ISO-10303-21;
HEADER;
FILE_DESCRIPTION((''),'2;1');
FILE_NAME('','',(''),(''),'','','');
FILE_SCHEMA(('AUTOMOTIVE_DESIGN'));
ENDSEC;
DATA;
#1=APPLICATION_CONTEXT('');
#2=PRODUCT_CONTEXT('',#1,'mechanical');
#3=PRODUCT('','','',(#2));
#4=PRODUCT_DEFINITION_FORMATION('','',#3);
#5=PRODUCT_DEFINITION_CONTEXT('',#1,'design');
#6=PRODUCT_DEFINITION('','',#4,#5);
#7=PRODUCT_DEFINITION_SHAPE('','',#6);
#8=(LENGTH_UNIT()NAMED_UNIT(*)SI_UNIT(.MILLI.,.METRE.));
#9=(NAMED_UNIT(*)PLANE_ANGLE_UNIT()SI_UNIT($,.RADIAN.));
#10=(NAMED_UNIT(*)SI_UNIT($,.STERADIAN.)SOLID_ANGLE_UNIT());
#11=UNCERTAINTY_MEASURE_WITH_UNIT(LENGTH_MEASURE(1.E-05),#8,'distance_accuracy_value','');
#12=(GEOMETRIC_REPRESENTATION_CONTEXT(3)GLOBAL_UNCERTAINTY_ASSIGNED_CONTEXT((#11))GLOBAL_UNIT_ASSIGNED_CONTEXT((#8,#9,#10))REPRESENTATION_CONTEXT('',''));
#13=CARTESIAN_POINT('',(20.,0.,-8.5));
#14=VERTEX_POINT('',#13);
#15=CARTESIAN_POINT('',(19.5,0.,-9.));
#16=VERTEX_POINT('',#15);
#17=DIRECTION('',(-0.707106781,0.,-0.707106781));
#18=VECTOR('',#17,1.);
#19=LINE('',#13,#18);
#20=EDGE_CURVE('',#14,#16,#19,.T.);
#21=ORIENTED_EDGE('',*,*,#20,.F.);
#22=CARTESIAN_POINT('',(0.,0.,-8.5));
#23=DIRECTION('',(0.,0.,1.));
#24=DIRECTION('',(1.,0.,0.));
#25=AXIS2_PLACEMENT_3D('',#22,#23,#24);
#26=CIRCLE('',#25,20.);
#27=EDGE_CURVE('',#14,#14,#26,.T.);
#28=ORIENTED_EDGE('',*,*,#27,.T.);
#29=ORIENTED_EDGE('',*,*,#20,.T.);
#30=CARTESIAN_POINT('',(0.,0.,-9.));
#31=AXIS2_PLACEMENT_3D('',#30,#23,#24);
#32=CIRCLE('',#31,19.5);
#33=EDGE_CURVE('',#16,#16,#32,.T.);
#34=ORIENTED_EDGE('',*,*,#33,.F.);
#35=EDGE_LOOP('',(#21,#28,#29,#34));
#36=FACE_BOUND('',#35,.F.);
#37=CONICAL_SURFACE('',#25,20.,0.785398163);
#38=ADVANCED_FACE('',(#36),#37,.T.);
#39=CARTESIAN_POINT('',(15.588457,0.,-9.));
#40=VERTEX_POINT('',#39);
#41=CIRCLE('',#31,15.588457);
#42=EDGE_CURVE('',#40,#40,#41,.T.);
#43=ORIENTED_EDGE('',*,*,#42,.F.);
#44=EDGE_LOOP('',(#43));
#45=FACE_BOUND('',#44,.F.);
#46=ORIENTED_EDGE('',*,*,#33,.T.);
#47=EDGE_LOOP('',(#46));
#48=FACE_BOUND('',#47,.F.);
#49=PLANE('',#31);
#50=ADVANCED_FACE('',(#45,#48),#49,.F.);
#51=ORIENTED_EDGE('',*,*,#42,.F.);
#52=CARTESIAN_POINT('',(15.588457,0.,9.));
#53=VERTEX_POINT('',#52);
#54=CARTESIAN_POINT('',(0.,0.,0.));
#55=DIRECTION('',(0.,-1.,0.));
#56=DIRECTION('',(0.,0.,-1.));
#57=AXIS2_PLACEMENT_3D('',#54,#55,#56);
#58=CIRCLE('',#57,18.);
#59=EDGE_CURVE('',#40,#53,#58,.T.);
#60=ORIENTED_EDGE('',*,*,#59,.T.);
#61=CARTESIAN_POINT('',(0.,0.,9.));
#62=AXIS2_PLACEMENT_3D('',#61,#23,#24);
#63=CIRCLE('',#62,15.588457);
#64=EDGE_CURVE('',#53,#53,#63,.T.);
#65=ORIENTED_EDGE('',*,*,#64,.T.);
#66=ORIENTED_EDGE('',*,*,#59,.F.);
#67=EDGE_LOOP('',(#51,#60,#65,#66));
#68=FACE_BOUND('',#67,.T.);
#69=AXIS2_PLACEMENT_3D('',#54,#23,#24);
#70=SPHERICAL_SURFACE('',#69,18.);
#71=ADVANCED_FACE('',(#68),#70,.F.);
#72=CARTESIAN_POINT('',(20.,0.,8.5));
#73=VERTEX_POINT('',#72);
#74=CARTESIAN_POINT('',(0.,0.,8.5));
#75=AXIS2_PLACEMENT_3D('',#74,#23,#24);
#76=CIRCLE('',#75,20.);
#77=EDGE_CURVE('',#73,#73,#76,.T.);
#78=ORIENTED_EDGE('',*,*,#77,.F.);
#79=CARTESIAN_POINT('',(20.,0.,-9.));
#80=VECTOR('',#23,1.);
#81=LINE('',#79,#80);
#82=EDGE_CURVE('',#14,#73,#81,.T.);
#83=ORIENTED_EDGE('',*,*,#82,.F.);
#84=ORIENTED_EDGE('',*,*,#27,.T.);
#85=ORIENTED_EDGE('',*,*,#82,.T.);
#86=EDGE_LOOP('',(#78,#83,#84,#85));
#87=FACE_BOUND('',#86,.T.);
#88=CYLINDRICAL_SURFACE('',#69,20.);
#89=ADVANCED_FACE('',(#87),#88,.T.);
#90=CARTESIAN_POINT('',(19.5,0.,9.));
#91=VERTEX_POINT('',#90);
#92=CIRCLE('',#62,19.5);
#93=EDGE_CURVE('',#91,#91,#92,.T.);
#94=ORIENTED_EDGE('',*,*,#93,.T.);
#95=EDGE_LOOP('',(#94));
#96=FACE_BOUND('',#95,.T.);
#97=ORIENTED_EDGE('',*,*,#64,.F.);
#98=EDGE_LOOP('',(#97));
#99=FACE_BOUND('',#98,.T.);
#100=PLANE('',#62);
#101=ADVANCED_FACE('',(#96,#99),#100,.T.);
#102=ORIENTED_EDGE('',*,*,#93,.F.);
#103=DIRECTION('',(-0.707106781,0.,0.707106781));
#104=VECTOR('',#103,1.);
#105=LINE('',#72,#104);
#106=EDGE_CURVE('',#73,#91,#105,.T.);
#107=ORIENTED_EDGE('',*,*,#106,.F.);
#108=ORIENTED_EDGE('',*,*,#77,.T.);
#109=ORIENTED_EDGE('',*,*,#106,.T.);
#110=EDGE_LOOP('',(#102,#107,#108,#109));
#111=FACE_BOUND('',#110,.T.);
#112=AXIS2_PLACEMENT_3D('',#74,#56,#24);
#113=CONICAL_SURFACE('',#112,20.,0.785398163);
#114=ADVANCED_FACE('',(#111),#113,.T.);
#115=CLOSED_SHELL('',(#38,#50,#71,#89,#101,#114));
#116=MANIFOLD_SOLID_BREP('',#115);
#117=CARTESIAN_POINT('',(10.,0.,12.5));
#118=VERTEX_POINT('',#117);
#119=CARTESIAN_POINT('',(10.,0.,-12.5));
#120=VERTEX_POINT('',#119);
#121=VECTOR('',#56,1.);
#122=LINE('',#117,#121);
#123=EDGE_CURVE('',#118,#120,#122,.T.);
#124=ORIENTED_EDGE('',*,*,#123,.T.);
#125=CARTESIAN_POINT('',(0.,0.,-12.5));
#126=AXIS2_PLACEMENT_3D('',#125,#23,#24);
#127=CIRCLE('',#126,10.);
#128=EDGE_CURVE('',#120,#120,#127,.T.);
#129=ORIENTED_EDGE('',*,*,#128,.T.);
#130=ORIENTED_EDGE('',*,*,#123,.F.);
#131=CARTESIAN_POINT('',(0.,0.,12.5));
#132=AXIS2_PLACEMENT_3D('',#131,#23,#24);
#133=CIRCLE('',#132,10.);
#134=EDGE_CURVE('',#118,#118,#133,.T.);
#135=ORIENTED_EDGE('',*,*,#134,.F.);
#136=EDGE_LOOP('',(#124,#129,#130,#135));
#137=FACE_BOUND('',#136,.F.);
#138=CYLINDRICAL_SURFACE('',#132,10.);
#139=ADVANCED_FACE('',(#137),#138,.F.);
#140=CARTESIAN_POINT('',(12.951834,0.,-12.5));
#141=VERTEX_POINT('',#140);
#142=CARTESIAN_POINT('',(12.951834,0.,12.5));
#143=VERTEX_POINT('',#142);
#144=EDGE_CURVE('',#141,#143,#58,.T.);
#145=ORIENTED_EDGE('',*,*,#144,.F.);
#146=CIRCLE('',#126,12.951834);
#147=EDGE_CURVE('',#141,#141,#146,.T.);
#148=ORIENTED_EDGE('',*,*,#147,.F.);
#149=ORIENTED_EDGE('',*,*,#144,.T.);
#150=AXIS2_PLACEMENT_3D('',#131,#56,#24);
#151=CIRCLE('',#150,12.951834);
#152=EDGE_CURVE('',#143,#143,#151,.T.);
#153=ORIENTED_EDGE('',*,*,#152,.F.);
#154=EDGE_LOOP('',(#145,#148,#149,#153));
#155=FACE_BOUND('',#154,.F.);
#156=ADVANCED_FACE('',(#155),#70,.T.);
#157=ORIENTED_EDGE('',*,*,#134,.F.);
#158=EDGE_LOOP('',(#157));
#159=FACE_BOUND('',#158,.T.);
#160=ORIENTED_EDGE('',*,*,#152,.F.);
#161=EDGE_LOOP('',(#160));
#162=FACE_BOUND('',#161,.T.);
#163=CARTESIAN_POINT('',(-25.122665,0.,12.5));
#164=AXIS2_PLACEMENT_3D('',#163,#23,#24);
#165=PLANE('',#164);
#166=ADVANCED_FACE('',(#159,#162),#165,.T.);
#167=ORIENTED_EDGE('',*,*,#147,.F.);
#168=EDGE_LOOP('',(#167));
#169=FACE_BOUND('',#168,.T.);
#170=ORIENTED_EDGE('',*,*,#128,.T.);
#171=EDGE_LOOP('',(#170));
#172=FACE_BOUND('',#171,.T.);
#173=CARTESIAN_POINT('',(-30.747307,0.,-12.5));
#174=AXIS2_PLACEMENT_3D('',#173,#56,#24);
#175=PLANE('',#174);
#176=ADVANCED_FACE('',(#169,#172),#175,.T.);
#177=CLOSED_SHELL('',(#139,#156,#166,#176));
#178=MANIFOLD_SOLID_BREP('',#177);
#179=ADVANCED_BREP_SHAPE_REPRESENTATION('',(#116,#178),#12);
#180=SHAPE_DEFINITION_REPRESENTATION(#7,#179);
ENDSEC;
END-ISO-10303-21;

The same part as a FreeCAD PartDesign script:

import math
import FreeCAD as App
import Part
import Sketcher
from FreeCAD import Vector


def edges_at(feature, points):
    """Names of the edges that pass closest to the given points."""
    edges = feature.Shape.Edges
    near = lambda p: min(range(len(edges)), key=lambda i: edges[i].distToShape(Part.Vertex(*p))[0])
    return sorted({f"Edge{near(p) + 1}" for p in points})

doc = App.newDocument("Part")
params = doc.addObject("Spreadsheet::Sheet", "Params")
for row, (alias, value) in enumerate([
    ("sketch1_diameter", "40 mm"),
    ("pad1_length", "18 mm"),
    ("sketch2_radius", "18 mm"),
    ("groove_angle", "360 deg"),
    ("chamfer_size", "0.5 mm"),
    ("sketch3_radius", "18 mm"),
    ("revolution_angle", "360 deg"),
    ("sketch5_diameter", "20 mm"),
], start=1):
    params.set(f"A{row}", alias)
    params.set(f"B{row}", "=" + value)
    params.setAlias(f"B{row}", alias)

body = doc.addObject("PartDesign::Body", "Body")

# Sketch on XY plane
sketch1 = body.newObject("Sketcher::SketchObject", "Sketch")
sketch1.AttachmentSupport = (doc.getObject("XY_Plane"), [""])
sketch1.MapMode = "FlatFace"
sketch1.addGeometry(Part.Circle(Vector(0, 0, 0), Vector(0, 0, 1), 20), False)
sketch1.addConstraint([
    Sketcher.Constraint("Coincident", 0, 3, -1, 1),
    Sketcher.Constraint("Diameter", 0, 40.0),
])
sketch1.setExpression("Constraints[1]", "Params.sketch1_diameter")
pad1 = body.newObject("PartDesign::Pad", "Pad")
pad1.Profile = sketch1
pad1.setExpression("Length", "Params.pad1_length")
pad1.Midplane = True

# Sketch on XZ plane
sketch2 = body.newObject("Sketcher::SketchObject", "Sketch001")
sketch2.AttachmentSupport = (doc.getObject("XZ_Plane"), [""])
sketch2.MapMode = "FlatFace"
sketch2.addGeometry([
    Part.LineSegment(Vector(0, 18, 0), Vector(0, -18, 0)),
    Part.ArcOfCircle(Part.Circle(Vector(0, 0, 0), Vector(0, 0, 1), 18), math.radians(-90), math.radians(90)),
], False)
sketch2.addConstraint([
    Sketcher.Constraint("Coincident", 0, 1, 1, 2),
    Sketcher.Constraint("Coincident", 1, 1, 0, 2),
    Sketcher.Constraint("Vertical", 0),
    Sketcher.Constraint("Coincident", 1, 3, -1, 1),
    Sketcher.Constraint("PointOnObject", 0, 1, -2),
    Sketcher.Constraint("Radius", 1, 18.0),
])
sketch2.setExpression("Constraints[5]", "Params.sketch2_radius")
groove = body.newObject("PartDesign::Groove", "Groove")
groove.Profile = sketch2
groove.ReferenceAxis = (sketch2, ["V_Axis"])
groove.setExpression("Angle", "Params.groove_angle")
doc.recompute()

chamfer = body.newObject("PartDesign::Chamfer", "Chamfer")
chamfer.Base = (groove, edges_at(groove, [(-20, 0, 9), (-20, 0, -9)]))
chamfer.setExpression("Size", "Params.chamfer_size")
body2 = doc.addObject("PartDesign::Body", "Body001")

# Sketch on XZ plane
sketch3 = body2.newObject("Sketcher::SketchObject", "Sketch002")
sketch3.AttachmentSupport = (doc.getObject("XZ_Plane001"), [""])
sketch3.MapMode = "FlatFace"
sketch3.addGeometry([
    Part.LineSegment(Vector(0, 18, 0), Vector(0, -18, 0)),
    Part.ArcOfCircle(Part.Circle(Vector(0, 0, 0), Vector(0, 0, 1), 18), math.radians(-90), math.radians(90)),
], False)
sketch3.addConstraint([
    Sketcher.Constraint("Coincident", 0, 1, 1, 2),
    Sketcher.Constraint("Coincident", 1, 1, 0, 2),
    Sketcher.Constraint("Vertical", 0),
    Sketcher.Constraint("Coincident", 1, 3, -1, 1),
    Sketcher.Constraint("PointOnObject", 0, 1, -2),
    Sketcher.Constraint("Radius", 1, 18.0),
])
sketch3.setExpression("Constraints[5]", "Params.sketch3_radius")
revolution = body2.newObject("PartDesign::Revolution", "Revolution")
revolution.Profile = sketch3
revolution.ReferenceAxis = (sketch3, ["V_Axis"])
revolution.setExpression("Angle", "Params.revolution_angle")

# Sketch on XZ plane
sketch4 = body2.newObject("Sketcher::SketchObject", "Sketch003")
sketch4.AttachmentSupport = (doc.getObject("XZ_Plane001"), [""])
sketch4.MapMode = "FlatFace"
sketch4.addGeometry([
    Part.LineSegment(Vector(-31, -12, 0), Vector(-31, -55, 0)),  # 0
    Part.LineSegment(Vector(-31, -55, 0), Vector(31, -55, 0)),  # 1
    Part.LineSegment(Vector(31, -55, 0), Vector(31, -12, 0)),  # 2
    Part.LineSegment(Vector(31, -12, 0), Vector(-31, -12, 0)),  # 3
    Part.LineSegment(Vector(-25, 35, 0), Vector(-25, 12, 0)),  # 4
    Part.LineSegment(Vector(-25, 12, 0), Vector(25, 12, 0)),  # 5
    Part.LineSegment(Vector(25, 12, 0), Vector(25, 35, 0)),  # 6
    Part.LineSegment(Vector(25, 35, 0), Vector(-25, 35, 0)),  # 7
], False)
sketch4.addConstraint([
    Sketcher.Constraint("Coincident", 0, 2, 1, 1),
    Sketcher.Constraint("Coincident", 1, 2, 2, 1),
    Sketcher.Constraint("Coincident", 2, 2, 3, 1),
    Sketcher.Constraint("Coincident", 3, 2, 0, 1),
    Sketcher.Constraint("Coincident", 4, 2, 5, 1),
    Sketcher.Constraint("Coincident", 5, 2, 6, 1),
    Sketcher.Constraint("Coincident", 6, 2, 7, 1),
    Sketcher.Constraint("Coincident", 7, 2, 4, 1),
    Sketcher.Constraint("Vertical", 0),
    Sketcher.Constraint("Horizontal", 1),
    Sketcher.Constraint("Vertical", 2),
    Sketcher.Constraint("Horizontal", 3),
    Sketcher.Constraint("Vertical", 4),
    Sketcher.Constraint("Horizontal", 5),
    Sketcher.Constraint("Vertical", 6),
    Sketcher.Constraint("Horizontal", 7),
    Sketcher.Constraint("DistanceY", 3, 2, 4, 2, 25.0),
    Sketcher.Constraint("DistanceY", 2, 2, -1, 1, 12.5),
    Sketcher.Constraint("DistanceX", 5, 1, 5, 2, 50.24533),
    Sketcher.Constraint("DistanceX", 1, 1, 1, 2, 61.494614),
    Sketcher.Constraint("DistanceY", 0, 2, 0, 1, 42.521363),
    Sketcher.Constraint("DistanceY", 4, 2, 4, 1, 22.918887),
    Sketcher.Constraint("DistanceX", 3, 2, 4, 2, 5.624642),
    Sketcher.Constraint("DistanceX", 0, 2, -1, 1, 30.747307),
])
pocket1 = body2.newObject("PartDesign::Pocket", "Pocket")
pocket1.Profile = sketch4
pocket1.Type = "ThroughAll"
pocket1.Midplane = True

# Sketch on XY plane
sketch5 = body2.newObject("Sketcher::SketchObject", "Sketch004")
sketch5.AttachmentSupport = (doc.getObject("XY_Plane001"), [""])
sketch5.MapMode = "FlatFace"
sketch5.AttachmentOffset = App.Placement(Vector(0, 0, 12.5), App.Rotation())
sketch5.addGeometry(Part.Circle(Vector(0, 0, 0), Vector(0, 0, 1), 10), False)
sketch5.addConstraint([
    Sketcher.Constraint("Coincident", 0, 3, -1, 1),
    Sketcher.Constraint("Diameter", 0, 20.0),
])
sketch5.setExpression("Constraints[1]", "Params.sketch5_diameter")
pocket2 = body2.newObject("PartDesign::Pocket", "Pocket001")
pocket2.Profile = sketch5
pocket2.Type = "ThroughAll"

doc.recompute()
